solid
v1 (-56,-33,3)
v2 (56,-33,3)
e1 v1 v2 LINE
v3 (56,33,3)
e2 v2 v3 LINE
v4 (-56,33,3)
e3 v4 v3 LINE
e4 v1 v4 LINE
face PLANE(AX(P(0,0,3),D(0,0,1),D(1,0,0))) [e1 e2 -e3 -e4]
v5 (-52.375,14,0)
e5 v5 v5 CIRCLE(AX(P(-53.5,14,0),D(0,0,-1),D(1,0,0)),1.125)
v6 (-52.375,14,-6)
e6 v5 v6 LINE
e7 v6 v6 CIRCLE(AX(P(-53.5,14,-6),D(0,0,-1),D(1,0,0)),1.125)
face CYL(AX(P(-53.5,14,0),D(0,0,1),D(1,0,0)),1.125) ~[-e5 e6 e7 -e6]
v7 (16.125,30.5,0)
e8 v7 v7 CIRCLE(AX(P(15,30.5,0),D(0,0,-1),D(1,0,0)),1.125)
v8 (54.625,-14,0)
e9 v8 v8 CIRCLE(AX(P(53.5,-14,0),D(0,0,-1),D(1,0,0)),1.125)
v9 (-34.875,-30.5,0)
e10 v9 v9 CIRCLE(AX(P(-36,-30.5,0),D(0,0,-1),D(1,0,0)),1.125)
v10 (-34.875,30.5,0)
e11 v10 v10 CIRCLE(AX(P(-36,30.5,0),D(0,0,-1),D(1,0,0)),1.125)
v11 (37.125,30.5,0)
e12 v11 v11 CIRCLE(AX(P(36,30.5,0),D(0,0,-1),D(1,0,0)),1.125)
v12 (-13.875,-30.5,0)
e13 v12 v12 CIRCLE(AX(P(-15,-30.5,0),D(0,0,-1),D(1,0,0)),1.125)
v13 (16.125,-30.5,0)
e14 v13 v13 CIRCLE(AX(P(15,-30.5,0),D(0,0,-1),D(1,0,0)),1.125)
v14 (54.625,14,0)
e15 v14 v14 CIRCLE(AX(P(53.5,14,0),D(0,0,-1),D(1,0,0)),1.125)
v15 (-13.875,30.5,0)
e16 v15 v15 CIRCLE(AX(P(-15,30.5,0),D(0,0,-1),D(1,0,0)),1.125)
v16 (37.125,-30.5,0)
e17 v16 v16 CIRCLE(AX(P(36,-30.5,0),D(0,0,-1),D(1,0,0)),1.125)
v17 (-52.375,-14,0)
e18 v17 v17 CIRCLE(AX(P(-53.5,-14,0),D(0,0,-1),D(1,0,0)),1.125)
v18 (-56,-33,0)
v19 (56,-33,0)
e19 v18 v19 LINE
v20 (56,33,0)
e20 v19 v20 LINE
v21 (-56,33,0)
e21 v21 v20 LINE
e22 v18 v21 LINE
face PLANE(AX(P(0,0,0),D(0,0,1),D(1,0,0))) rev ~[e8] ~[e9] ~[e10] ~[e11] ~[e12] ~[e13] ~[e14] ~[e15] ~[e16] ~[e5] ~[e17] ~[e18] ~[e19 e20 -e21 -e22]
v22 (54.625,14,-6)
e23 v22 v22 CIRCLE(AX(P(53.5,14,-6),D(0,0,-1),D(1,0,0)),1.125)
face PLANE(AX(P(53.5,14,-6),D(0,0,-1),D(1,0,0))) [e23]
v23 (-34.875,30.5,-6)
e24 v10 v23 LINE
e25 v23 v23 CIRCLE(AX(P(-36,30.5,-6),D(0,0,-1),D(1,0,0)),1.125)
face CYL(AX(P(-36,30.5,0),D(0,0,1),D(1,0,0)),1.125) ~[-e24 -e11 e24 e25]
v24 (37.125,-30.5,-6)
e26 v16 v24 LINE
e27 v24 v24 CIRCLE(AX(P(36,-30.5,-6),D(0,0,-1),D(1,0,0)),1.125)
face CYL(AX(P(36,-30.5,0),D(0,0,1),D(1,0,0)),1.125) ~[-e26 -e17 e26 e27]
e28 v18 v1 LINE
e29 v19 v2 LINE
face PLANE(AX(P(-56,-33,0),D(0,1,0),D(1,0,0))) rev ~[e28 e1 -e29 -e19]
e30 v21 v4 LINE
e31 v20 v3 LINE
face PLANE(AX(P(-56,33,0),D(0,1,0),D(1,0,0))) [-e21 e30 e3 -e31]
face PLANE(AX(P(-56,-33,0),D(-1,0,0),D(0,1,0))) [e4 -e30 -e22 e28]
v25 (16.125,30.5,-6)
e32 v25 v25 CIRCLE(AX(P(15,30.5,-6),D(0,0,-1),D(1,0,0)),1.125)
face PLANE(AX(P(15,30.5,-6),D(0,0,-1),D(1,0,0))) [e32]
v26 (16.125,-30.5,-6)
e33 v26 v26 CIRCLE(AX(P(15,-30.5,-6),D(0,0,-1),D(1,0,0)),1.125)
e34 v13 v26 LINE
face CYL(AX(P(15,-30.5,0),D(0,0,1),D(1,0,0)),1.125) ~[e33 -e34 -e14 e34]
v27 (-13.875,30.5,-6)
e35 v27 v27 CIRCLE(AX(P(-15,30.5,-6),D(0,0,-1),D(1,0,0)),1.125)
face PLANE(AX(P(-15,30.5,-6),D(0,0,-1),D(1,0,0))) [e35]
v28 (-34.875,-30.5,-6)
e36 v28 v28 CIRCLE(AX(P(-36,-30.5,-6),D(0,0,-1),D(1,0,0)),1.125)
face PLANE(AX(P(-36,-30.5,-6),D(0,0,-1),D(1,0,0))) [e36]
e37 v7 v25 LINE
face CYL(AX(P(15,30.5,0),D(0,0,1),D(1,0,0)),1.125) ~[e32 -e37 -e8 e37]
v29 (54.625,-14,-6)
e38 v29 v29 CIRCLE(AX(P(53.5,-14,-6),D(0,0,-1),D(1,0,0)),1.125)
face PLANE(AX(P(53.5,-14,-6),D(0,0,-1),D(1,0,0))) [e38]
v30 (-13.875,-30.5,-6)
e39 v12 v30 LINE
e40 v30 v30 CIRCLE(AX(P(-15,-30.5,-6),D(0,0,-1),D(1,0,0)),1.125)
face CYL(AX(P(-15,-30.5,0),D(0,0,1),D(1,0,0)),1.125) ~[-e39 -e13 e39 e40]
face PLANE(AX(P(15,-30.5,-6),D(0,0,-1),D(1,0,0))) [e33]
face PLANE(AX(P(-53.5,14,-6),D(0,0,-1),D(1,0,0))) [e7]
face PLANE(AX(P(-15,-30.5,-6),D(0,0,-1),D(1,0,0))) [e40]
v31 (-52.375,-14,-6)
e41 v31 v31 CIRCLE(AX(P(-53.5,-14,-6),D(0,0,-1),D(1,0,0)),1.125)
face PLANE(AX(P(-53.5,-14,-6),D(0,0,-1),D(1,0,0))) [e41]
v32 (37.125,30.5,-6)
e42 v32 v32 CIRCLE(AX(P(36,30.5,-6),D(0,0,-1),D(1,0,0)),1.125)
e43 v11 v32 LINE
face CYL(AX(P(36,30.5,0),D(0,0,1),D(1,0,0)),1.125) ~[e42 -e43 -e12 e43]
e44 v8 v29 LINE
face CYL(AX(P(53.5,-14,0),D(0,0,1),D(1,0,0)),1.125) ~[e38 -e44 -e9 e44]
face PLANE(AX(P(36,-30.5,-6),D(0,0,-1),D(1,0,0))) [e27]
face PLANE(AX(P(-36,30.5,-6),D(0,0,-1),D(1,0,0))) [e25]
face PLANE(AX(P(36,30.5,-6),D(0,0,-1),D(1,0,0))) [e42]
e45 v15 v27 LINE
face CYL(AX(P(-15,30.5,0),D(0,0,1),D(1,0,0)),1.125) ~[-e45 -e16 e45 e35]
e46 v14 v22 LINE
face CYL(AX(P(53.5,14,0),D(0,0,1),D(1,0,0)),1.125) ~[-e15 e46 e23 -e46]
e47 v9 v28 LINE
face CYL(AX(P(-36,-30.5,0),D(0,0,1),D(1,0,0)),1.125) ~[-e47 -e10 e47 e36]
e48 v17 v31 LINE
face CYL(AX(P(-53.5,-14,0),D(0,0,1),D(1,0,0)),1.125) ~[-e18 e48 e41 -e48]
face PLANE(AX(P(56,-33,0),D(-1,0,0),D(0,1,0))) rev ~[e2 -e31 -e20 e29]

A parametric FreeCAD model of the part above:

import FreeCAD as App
import Part
import Sketcher

V = App.Vector
Q = App.Units.Quantity

doc = App.newDocument("Part")
params = doc.addObject("Spreadsheet::Sheet", "Params")
for row, (alias, value) in enumerate([
    ("sketch1_width", "112 mm"),
    ("sketch1_height", "66 mm"),
    ("pad1_length", "3 mm"),
    ("sketch2_diameter", "2.25 mm"),
    ("pad2_length", "6 mm"),
], start=1):
    params.set(f"A{row}", alias)
    params.set(f"B{row}", "=" + value)
    params.setAlias(f"B{row}", alias)

body = doc.addObject("PartDesign::Body", "Body")

sketch1 = doc.addObject("Sketcher::SketchObject", "Sketch")
body.addObject(sketch1)
sketch1.AttachmentSupport = (doc.XY_Plane, [""])
sketch1.MapMode = "FlatFace"
sketch1.addGeometry([
    Part.LineSegment(V(-56, 33, 0), V(-56, -33, 0)),
    Part.LineSegment(V(-56, -33, 0), V(56, -33, 0)),
    Part.LineSegment(V(56, -33, 0), V(56, 33, 0)),
    Part.LineSegment(V(56, 33, 0), V(-56, 33, 0)),
], False)
sketch1.addConstraint([
    Sketcher.Constraint("Coincident", 0, 2, 1, 1),
    Sketcher.Constraint("Coincident", 1, 2, 2, 1),
    Sketcher.Constraint("Coincident", 2, 2, 3, 1),
    Sketcher.Constraint("Coincident", 3, 2, 0, 1),
    Sketcher.Constraint("Vertical", 0),
    Sketcher.Constraint("Horizontal", 1),
    Sketcher.Constraint("Vertical", 2),
    Sketcher.Constraint("Horizontal", 3),
    Sketcher.Constraint("Symmetric", 0, 2, 2, 2, -1, 1),
    Sketcher.Constraint("DistanceX", 1, 1, 1, 2, Q("112 mm")),
    Sketcher.Constraint("DistanceY", 0, 2, 0, 1, Q("66 mm")),
])
sketch1.setExpression("Constraints[9]", "Params.sketch1_width")
sketch1.setExpression("Constraints[10]", "Params.sketch1_height")
pad1 = doc.addObject("PartDesign::Pad", "Pad")
body.addObject(pad1)
pad1.Profile = sketch1
pad1.setExpression("Length", "Params.pad1_length")

sketch2 = doc.addObject("Sketcher::SketchObject", "Sketch001")
body.addObject(sketch2)
sketch2.AttachmentSupport = (doc.XY_Plane, [""])
sketch2.MapMode = "FlatFace"
sketch2.addGeometry([
    Part.Circle(V(-53.5, -14, 0), V(0, 0, 1), 1.1),
    Part.Circle(V(-36, -30.5, 0), V(0, 0, 1), 1.1),
    Part.Circle(V(-15, -30.5, 0), V(0, 0, 1), 1.1),
    Part.Circle(V(15, -30.5, 0), V(0, 0, 1), 1.1),
    Part.Circle(V(36, -30.5, 0), V(0, 0, 1), 1.1),
    Part.Circle(V(53.5, -14, 0), V(0, 0, 1), 1.1),
    Part.Circle(V(53.5, 14, 0), V(0, 0, 1), 1.1),
    Part.Circle(V(36, 30.5, 0), V(0, 0, 1), 1.1),
    Part.Circle(V(15, 30.5, 0), V(0, 0, 1), 1.1),
    Part.Circle(V(-15, 30.5, 0), V(0, 0, 1), 1.1),
    Part.Circle(V(-36, 30.5, 0), V(0, 0, 1), 1.1),
    Part.Circle(V(-53.5, 14, 0), V(0, 0, 1), 1.1),
], False)
sketch2.addConstraint([
    Sketcher.Constraint("Equal", 0, 1),
    Sketcher.Constraint("Equal", 1, 2),
    Sketcher.Constraint("Equal", 2, 3),
    Sketcher.Constraint("Equal", 3, 4),
    Sketcher.Constraint("Equal", 4, 5),
    Sketcher.Constraint("Equal", 5, 6),
    Sketcher.Constraint("Equal", 6, 7),
    Sketcher.Constraint("Equal", 7, 8),
    Sketcher.Constraint("Equal", 8, 9),
    Sketcher.Constraint("Equal", 9, 10),
    Sketcher.Constraint("Equal", 10, 11),
    Sketcher.Constraint("Symmetric", 0, 3, 6, 3, -1, 1),
    Sketcher.Constraint("Symmetric", 1, 3, 7, 3, -1, 1),
    Sketcher.Constraint("Symmetric", 2, 3, 8, 3, -1, 1),
    Sketcher.Constraint("Symmetric", 3, 3, 9, 3, -1, 1),
    Sketcher.Constraint("Symmetric", 4, 3, 10, 3, -1, 1),
    Sketcher.Constraint("Symmetric", 5, 3, 11, 3, -1, 1),
    Sketcher.Constraint("Symmetric", 2, 3, 3, 3, -2),
    Sketcher.Constraint("Symmetric", 1, 3, 4, 3, -2),
    Sketcher.Constraint("Symmetric", 0, 3, 5, 3, -2),
    Sketcher.Constraint("Horizontal", 1, 3, 2, 3),
    Sketcher.Constraint("Diameter", 0, Q("2.25 mm")),
    Sketcher.Constraint("DistanceY", 0, 3, -1, 1, Q("14 mm")),
    Sketcher.Constraint("DistanceX", 1, 3, -1, 1, Q("36 mm")),
    Sketcher.Constraint("DistanceX", 2, 3, -1, 1, Q("15 mm")),
    Sketcher.Constraint("DistanceX", 0, 3, 5, 3, Q("107 mm")),
    Sketcher.Constraint("DistanceY", 4, 3, 7, 3, Q("61 mm")),
])
sketch2.setExpression("Constraints[21]", "Params.sketch2_diameter")
pad2 = doc.addObject("PartDesign::Pad", "Pad001")
body.addObject(pad2)
pad2.Profile = sketch2
pad2.setExpression("Length", "Params.pad2_length")
pad2.Reversed = True

doc.recompute()
